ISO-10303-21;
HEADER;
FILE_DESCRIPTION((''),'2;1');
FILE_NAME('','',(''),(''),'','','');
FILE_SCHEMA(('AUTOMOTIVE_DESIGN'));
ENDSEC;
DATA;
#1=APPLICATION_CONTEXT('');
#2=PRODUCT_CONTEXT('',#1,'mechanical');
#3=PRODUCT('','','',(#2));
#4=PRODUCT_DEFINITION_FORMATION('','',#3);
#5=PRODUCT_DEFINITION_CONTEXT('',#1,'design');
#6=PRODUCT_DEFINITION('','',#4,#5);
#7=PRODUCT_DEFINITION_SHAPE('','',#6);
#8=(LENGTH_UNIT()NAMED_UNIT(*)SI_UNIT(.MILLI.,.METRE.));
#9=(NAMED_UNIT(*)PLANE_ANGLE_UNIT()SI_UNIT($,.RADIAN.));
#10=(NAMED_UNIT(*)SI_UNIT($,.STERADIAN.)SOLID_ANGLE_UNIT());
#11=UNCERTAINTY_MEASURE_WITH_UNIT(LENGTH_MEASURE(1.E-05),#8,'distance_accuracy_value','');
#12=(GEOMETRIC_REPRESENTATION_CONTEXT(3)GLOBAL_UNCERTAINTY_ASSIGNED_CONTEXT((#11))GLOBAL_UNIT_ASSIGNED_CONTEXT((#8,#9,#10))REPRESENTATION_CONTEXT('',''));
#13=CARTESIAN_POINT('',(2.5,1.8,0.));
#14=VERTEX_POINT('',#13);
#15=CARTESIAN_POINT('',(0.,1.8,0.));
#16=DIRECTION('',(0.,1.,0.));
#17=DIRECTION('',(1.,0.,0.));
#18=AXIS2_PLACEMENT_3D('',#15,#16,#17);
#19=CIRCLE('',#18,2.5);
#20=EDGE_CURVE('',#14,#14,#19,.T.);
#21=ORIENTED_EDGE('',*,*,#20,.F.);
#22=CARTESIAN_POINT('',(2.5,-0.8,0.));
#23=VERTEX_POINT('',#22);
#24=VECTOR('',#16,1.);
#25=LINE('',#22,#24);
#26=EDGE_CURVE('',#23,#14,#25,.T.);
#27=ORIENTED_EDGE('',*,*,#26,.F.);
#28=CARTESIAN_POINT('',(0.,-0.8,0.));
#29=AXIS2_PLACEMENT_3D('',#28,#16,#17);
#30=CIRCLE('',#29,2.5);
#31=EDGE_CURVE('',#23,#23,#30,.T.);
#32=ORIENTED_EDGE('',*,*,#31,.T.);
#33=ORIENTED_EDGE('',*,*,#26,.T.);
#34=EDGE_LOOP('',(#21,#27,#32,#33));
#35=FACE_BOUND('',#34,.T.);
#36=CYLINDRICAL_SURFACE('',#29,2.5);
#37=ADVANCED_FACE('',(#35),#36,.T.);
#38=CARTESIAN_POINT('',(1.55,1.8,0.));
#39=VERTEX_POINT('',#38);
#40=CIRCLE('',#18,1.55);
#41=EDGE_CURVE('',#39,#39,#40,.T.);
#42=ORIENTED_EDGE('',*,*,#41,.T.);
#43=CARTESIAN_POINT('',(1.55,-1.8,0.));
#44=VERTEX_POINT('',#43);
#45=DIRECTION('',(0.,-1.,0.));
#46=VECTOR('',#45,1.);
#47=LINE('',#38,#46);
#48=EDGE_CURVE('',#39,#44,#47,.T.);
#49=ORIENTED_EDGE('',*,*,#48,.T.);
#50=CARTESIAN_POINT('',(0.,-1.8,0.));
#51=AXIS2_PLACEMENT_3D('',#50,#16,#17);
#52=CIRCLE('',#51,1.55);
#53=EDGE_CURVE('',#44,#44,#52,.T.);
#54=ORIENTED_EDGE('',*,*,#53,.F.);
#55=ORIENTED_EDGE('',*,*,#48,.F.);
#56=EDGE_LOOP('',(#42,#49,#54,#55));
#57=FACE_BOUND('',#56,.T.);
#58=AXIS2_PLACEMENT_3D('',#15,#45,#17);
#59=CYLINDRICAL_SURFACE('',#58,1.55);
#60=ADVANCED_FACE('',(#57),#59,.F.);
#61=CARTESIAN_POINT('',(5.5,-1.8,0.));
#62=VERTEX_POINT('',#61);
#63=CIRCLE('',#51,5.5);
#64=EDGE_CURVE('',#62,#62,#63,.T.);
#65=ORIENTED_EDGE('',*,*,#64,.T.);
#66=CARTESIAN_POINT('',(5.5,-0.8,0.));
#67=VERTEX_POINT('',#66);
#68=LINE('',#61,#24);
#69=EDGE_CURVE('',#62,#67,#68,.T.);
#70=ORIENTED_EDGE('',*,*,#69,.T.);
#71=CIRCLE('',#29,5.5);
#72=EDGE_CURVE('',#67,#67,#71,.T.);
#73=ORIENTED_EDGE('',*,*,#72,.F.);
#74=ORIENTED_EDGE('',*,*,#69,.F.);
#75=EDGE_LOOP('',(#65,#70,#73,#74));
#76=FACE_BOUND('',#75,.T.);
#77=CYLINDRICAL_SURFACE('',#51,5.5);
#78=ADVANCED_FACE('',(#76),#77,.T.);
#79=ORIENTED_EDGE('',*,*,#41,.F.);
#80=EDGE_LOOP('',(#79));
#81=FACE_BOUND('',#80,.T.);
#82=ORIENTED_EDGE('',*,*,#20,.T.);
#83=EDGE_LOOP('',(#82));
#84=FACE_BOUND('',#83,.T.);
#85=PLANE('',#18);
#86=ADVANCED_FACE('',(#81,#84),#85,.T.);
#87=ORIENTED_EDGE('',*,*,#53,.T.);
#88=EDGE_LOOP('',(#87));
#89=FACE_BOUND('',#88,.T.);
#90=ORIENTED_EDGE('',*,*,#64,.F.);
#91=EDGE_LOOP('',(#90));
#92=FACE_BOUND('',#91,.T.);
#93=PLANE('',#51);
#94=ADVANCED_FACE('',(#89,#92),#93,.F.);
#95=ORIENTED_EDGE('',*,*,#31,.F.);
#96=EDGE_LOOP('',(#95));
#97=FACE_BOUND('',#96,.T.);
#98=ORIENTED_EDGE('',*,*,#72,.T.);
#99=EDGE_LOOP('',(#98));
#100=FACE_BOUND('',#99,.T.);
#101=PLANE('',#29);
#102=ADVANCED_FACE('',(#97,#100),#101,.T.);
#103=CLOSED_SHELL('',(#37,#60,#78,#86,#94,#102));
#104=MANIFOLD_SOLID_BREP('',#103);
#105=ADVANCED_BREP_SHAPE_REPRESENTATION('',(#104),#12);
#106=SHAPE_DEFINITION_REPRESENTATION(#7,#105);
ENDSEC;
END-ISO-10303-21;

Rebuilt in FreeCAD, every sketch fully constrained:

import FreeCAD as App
import Part
import Sketcher

V = App.Vector
Q = App.Units.Quantity

doc = App.newDocument("Part")
body = doc.addObject("PartDesign::Body", "Body")

sketch1 = body.newObject("Sketcher::SketchObject", "Sketch")
sketch1.AttachmentSupport = (doc.getObject("XY_Plane"), [""])
sketch1.MapMode = "FlatFace"
sketch1.addGeometry(Part.LineSegment(V(2.5, 1.8, 0), V(1.6, 1.8, 0)), False)
sketch1.addGeometry(Part.LineSegment(V(1.6, 1.8, 0), V(1.6, -1.8, 0)), False)
sketch1.addGeometry(Part.LineSegment(V(1.6, -1.8, 0), V(5.5, -1.8, 0)), False)
sketch1.addGeometry(Part.LineSegment(V(5.5, -1.8, 0), V(5.5, -0.8, 0)), False)
sketch1.addGeometry(Part.LineSegment(V(5.5, -0.8, 0), V(2.5, -0.8, 0)), False)
sketch1.addGeometry(Part.LineSegment(V(2.5, -0.8, 0), V(2.5, 1.8, 0)), False)
sketch1.addConstraint(Sketcher.Constraint("Coincident", 0, 2, 1, 1))
sketch1.addConstraint(Sketcher.Constraint("Coincident", 1, 2, 2, 1))
sketch1.addConstraint(Sketcher.Constraint("Coincident", 2, 2, 3, 1))
sketch1.addConstraint(Sketcher.Constraint("Coincident", 3, 2, 4, 1))
sketch1.addConstraint(Sketcher.Constraint("Coincident", 4, 2, 5, 1))
sketch1.addConstraint(Sketcher.Constraint("Coincident", 5, 2, 0, 1))
sketch1.addConstraint(Sketcher.Constraint("Horizontal", 0))
sketch1.addConstraint(Sketcher.Constraint("Vertical", 1))
sketch1.addConstraint(Sketcher.Constraint("Horizontal", 2))
sketch1.addConstraint(Sketcher.Constraint("Vertical", 3))
sketch1.addConstraint(Sketcher.Constraint("Horizontal", 4))
sketch1.addConstraint(Sketcher.Constraint("Vertical", 5))
sketch1.addConstraint(Sketcher.Constraint("DistanceY", 3, 1, 3, 2, Q("1 mm")))
sketch1.addConstraint(Sketcher.Constraint("DistanceY", 5, 1, 5, 2, Q("2.6 mm")))
sketch1.addConstraint(Sketcher.Constraint("DistanceX", -1, 1, 2, 2, Q("5.5 mm")))
sketch1.addConstraint(Sketcher.Constraint("DistanceX", -1, 1, 4, 2, Q("2.5 mm")))
sketch1.addConstraint(Sketcher.Constraint("DistanceX", -1, 1, 0, 2, Q("1.55 mm")))
sketch1.addConstraint(Sketcher.Constraint("DistanceY", -1, 1, 0, 2, Q("1.8 mm")))
revolution = body.newObject("PartDesign::Revolution", "Revolution")
revolution.Profile = sketch1
revolution.ReferenceAxis = (sketch1, ["V_Axis"])
revolution.Angle = 360

doc.recompute()
